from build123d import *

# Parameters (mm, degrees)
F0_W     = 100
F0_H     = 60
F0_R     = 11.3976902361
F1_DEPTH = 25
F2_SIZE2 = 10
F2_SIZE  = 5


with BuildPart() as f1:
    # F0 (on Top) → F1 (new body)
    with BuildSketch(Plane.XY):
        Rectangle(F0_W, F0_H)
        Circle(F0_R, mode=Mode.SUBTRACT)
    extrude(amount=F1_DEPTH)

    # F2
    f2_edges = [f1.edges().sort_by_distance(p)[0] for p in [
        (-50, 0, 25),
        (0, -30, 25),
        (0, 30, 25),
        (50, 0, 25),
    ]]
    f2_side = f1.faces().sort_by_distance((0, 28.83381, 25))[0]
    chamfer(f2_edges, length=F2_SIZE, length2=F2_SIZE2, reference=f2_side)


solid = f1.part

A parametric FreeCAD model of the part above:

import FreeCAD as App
import Part
import Sketcher

V = App.Vector
Q = App.Units.Quantity


def edges_at(feature, points):
    """Names of the edges that pass closest to the given points."""
    edges = feature.Shape.Edges
    near = lambda p: min(range(len(edges)), key=lambda i: edges[i].distToShape(Part.Vertex(*p))[0])
    return sorted({f"Edge{near(p) + 1}" for p in points})


def add_polygon(sketch, points):
    """Adds a closed chain of lines whose ends are joined by coincident constraints."""
    first, n = sketch.GeometryCount, len(points)
    for a, b in zip(points, points[1:] + points[:1]):
        sketch.addGeometry(Part.LineSegment(App.Vector(*a, 0), App.Vector(*b, 0)), False)
    for i in range(n):
        sketch.addConstraint(Sketcher.Constraint("Coincident", first + i, 2, first + (i + 1) % n, 1))

doc = App.newDocument("Part")
params = doc.addObject("Spreadsheet::Sheet", "Params")
for row, (alias, value) in enumerate([
    ("sketch1_width", "100 mm"),
    ("sketch1_height", "60 mm"),
    ("pad1_length", "25 mm"),
    ("chamfer_size", "5 mm"),
    ("chamfer_size2", "10 mm"),
], start=1):
    params.set(f"A{row}", alias)
    params.set(f"B{row}", "=" + value)
    params.setAlias(f"B{row}", alias)

body = doc.addObject("PartDesign::Body", "Body")

# Sketch on XY plane
sketch1 = body.newObject("Sketcher::SketchObject", "Sketch")
sketch1.AttachmentSupport = (doc.getObject("XY_Plane"), [""])
sketch1.MapMode = "FlatFace"
add_polygon(sketch1, [(-50, 30), (-50, -30), (50, -30), (50, 30)])  # lines 0-3
sketch1.addGeometry(Part.Circle(V(0, 0, 0), V(0, 0, 1), 11), False)  # 4
sketch1.addConstraint(Sketcher.Constraint("Vertical", 0))
sketch1.addConstraint(Sketcher.Constraint("Horizontal", 1))
sketch1.addConstraint(Sketcher.Constraint("Vertical", 2))
sketch1.addConstraint(Sketcher.Constraint("Horizontal", 3))
sketch1.addConstraint(Sketcher.Constraint("Coincident", 4, 3, -1, 1))
sketch1.addConstraint(Sketcher.Constraint("Symmetric", 0, 2, 2, 2, -1, 1))
sketch1.addConstraint(Sketcher.Constraint("DistanceX", 1, 1, 1, 2, Q("100 mm")))
sketch1.addConstraint(Sketcher.Constraint("DistanceY", 0, 2, 0, 1, Q("60 mm")))
sketch1.addConstraint(Sketcher.Constraint("Diameter", 4, Q("22.79538 mm")))
sketch1.setExpression("Constraints[10]", "Params.sketch1_width")
sketch1.setExpression("Constraints[11]", "Params.sketch1_height")
pad1 = body.newObject("PartDesign::Pad", "Pad")
pad1.Profile = sketch1
pad1.setExpression("Length", "Params.pad1_length")
doc.recompute()

chamfer = body.newObject("PartDesign::Chamfer", "Chamfer")
chamfer.Base = (pad1, edges_at(pad1, [
    (-50, 0, 25),
    (0, -30, 25),
    (0, 30, 25),
    (50, 0, 25),
]))
chamfer.ChamferType = "Two distances"
chamfer.setExpression("Size", "Params.chamfer_size")
chamfer.setExpression("Size2", "Params.chamfer_size2")
chamfer.FlipDirection = True

doc.recompute()
